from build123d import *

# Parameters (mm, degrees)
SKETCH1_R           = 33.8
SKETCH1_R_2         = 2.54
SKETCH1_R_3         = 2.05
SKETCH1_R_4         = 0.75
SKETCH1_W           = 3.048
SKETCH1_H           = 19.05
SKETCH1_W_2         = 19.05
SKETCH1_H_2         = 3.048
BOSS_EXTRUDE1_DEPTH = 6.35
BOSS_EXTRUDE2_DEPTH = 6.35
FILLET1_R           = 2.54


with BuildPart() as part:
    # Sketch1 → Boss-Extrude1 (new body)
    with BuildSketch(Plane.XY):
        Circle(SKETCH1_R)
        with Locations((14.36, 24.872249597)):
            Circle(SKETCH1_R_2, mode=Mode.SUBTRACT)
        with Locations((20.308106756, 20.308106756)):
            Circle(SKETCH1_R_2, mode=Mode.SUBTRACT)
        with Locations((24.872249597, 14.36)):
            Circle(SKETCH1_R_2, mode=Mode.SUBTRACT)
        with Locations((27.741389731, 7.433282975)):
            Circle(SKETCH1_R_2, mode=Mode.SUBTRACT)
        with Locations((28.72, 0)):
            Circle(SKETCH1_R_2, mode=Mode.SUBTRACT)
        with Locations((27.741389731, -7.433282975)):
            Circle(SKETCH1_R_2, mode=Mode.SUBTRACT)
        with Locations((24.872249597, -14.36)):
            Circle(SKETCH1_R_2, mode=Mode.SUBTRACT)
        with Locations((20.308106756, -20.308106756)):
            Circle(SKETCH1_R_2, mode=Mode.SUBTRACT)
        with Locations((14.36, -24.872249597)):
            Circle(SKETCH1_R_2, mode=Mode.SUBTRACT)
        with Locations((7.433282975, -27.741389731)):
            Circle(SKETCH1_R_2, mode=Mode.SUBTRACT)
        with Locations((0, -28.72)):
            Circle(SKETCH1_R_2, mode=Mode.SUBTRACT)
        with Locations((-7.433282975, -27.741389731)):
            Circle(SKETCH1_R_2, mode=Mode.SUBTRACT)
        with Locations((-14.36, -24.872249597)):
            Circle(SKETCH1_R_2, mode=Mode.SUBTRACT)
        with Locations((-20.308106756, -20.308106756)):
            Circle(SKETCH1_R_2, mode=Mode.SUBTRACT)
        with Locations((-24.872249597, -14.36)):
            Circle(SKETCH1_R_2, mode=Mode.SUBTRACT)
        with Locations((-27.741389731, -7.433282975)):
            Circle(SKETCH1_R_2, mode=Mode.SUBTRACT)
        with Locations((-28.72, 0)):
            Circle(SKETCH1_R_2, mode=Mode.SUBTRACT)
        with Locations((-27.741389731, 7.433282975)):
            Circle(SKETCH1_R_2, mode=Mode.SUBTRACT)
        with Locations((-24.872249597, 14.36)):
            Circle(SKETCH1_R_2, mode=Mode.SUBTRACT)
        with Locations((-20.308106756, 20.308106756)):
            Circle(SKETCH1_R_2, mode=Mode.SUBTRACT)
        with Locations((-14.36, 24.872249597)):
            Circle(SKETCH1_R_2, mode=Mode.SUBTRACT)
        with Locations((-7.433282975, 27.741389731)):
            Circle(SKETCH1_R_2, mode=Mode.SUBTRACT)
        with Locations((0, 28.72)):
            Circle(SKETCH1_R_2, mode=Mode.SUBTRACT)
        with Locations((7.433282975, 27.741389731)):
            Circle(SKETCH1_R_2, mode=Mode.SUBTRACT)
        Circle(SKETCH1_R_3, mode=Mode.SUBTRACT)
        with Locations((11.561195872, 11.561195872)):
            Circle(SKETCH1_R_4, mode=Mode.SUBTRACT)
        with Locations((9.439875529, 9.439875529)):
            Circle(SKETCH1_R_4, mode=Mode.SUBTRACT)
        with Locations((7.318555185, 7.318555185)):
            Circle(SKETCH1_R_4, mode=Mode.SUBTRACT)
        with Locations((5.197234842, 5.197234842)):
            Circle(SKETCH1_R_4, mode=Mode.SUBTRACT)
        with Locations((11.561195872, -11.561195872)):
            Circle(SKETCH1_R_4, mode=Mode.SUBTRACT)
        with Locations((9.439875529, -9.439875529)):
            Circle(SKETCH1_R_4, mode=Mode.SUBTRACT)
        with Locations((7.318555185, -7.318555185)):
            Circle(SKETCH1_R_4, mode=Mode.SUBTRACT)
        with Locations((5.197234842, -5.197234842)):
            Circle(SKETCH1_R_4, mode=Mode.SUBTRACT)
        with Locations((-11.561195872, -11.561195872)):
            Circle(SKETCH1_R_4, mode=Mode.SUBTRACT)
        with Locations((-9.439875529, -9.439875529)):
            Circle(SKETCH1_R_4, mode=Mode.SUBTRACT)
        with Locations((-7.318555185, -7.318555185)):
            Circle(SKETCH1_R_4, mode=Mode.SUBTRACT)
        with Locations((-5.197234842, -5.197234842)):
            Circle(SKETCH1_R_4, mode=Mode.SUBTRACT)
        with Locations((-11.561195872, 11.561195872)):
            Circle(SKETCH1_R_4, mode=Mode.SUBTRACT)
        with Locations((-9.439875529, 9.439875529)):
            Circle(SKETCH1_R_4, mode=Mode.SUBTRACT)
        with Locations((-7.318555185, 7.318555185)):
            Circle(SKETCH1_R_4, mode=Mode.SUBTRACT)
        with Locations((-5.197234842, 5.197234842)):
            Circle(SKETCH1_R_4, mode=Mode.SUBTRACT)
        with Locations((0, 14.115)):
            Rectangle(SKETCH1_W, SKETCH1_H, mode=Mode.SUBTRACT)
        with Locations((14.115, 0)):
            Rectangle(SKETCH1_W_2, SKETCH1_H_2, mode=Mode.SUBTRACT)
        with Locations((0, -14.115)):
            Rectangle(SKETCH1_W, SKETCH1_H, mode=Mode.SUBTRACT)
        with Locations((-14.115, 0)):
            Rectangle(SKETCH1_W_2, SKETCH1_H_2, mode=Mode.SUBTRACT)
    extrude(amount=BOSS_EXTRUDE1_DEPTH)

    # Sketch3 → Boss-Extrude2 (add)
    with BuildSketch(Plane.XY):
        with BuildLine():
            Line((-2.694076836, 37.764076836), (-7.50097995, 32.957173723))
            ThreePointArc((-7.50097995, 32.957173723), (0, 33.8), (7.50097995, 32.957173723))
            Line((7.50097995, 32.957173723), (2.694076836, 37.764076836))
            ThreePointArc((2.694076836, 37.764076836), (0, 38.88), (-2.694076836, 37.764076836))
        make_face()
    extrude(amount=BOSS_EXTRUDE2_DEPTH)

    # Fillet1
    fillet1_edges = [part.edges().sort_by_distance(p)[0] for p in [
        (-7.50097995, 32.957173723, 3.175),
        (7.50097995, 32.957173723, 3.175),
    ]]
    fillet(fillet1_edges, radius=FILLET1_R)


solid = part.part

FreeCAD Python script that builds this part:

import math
import FreeCAD as App
import Part
import Sketcher
Q = App.Units.Quantity


def edges_at(feature, points):
    """Names of the edges that pass closest to the given points."""
    edges = feature.Shape.Edges
    near = lambda p: min(range(len(edges)), key=lambda i: edges[i].distToShape(Part.Vertex(*p))[0])
    return sorted({f"Edge{near(p) + 1}" for p in points})

doc = App.newDocument("Part")
body = doc.addObject("PartDesign::Body", "Body")

sketch1 = body.newObject("Sketcher::SketchObject", "Sketch")
sketch1.AttachmentSupport = (doc.getObject("XY_Plane"), [""])
sketch1.MapMode = "FlatFace"
sketch1.addGeometry([
    Part.Circle(App.Vector(0, 0, 0), App.Vector(0, 0, 1), 33.8),
    Part.Circle(App.Vector(-20.3, -20.3, 0), App.Vector(0, 0, 1), 2.5),
    Part.Circle(App.Vector(-14.4, -24.9, 0), App.Vector(0, 0, 1), 2.5),
    Part.Circle(App.Vector(-7.4, -27.7, 0), App.Vector(0, 0, 1), 2.5),
    Part.Circle(App.Vector(0, -28.7, 0), App.Vector(0, 0, 1), 2.5),
    Part.Circle(App.Vector(-24.9, -14.4, 0), App.Vector(0, 0, 1), 2.5),
    Part.Circle(App.Vector(-27.7, -7.4, 0), App.Vector(0, 0, 1), 2.5),
    Part.Circle(App.Vector(-28.7, 0, 0), App.Vector(0, 0, 1), 2.5),
    Part.Circle(App.Vector(-11.6, -11.6, 0), App.Vector(0, 0, 1), 0.8),
    Part.Circle(App.Vector(-9.4, -9.4, 0), App.Vector(0, 0, 1), 0.8),
    Part.LineSegment(App.Vector(1.5, -23.6, 0), App.Vector(-1.5, -23.6, 0)),
    Part.LineSegment(App.Vector(-1.5, -23.6, 0), App.Vector(-1.5, -4.6, 0)),
    Part.LineSegment(App.Vector(-1.5, -4.6, 0), App.Vector(1.5, -4.6, 0)),
    Part.LineSegment(App.Vector(1.5, -4.6, 0), App.Vector(1.5, -23.6, 0)),
    Part.LineSegment(App.Vector(-4.6, -1.5, 0), App.Vector(-23.6, -1.5, 0)),
    Part.LineSegment(App.Vector(-23.6, -1.5, 0), App.Vector(-23.6, 1.5, 0)),
    Part.LineSegment(App.Vector(-23.6, 1.5, 0), App.Vector(-4.6, 1.5, 0)),
    Part.LineSegment(App.Vector(-4.6, 1.5, 0), App.Vector(-4.6, -1.5, 0)),
    Part.Circle(App.Vector(-7.3, -7.3, 0), App.Vector(0, 0, 1), 0.8),
    Part.Circle(App.Vector(-5.2, -5.2, 0), App.Vector(0, 0, 1), 0.8),
    Part.Circle(App.Vector(0, 0, 0), App.Vector(0, 0, 1), 2),
    Part.Circle(App.Vector(7.4, -27.7, 0), App.Vector(0, 0, 1), 2.5),
    Part.Circle(App.Vector(14.4, -24.9, 0), App.Vector(0, 0, 1), 2.5),
    Part.Circle(App.Vector(20.3, -20.3, 0), App.Vector(0, 0, 1), 2.5),
    Part.Circle(App.Vector(11.6, -11.6, 0), App.Vector(0, 0, 1), 0.8),
    Part.Circle(App.Vector(9.4, -9.4, 0), App.Vector(0, 0, 1), 0.8),
    Part.Circle(App.Vector(7.3, -7.3, 0), App.Vector(0, 0, 1), 0.8),
    Part.Circle(App.Vector(5.2, -5.2, 0), App.Vector(0, 0, 1), 0.8),
    Part.LineSegment(App.Vector(23.6, -1.5, 0), App.Vector(4.6, -1.5, 0)),
    Part.LineSegment(App.Vector(4.6, -1.5, 0), App.Vector(4.6, 1.5, 0)),
    Part.LineSegment(App.Vector(4.6, 1.5, 0), App.Vector(23.6, 1.5, 0)),
    Part.LineSegment(App.Vector(23.6, 1.5, 0), App.Vector(23.6, -1.5, 0)),
    Part.Circle(App.Vector(24.9, -14.4, 0), App.Vector(0, 0, 1), 2.5),
    Part.Circle(App.Vector(27.7, -7.4, 0), App.Vector(0, 0, 1), 2.5),
    Part.Circle(App.Vector(28.7, 0, 0), App.Vector(0, 0, 1), 2.5),
    Part.Circle(App.Vector(-27.7, 7.4, 0), App.Vector(0, 0, 1), 2.5),
    Part.Circle(App.Vector(-24.9, 14.4, 0), App.Vector(0, 0, 1), 2.5),
    Part.Circle(App.Vector(-5.2, 5.2, 0), App.Vector(0, 0, 1), 0.8),
    Part.Circle(App.Vector(-7.3, 7.3, 0), App.Vector(0, 0, 1), 0.8),
    Part.Circle(App.Vector(-9.4, 9.4, 0), App.Vector(0, 0, 1), 0.8),
    Part.Circle(App.Vector(-11.6, 11.6, 0), App.Vector(0, 0, 1), 0.8),
    Part.LineSegment(App.Vector(1.5, 4.6, 0), App.Vector(-1.5, 4.6, 0)),
    Part.LineSegment(App.Vector(-1.5, 4.6, 0), App.Vector(-1.5, 23.6, 0)),
    Part.LineSegment(App.Vector(-1.5, 23.6, 0), App.Vector(1.5, 23.6, 0)),
    Part.LineSegment(App.Vector(1.5, 23.6, 0), App.Vector(1.5, 4.6, 0)),
    Part.Circle(App.Vector(-20.3, 20.3, 0), App.Vector(0, 0, 1), 2.5),
    Part.Circle(App.Vector(-14.4, 24.9, 0), App.Vector(0, 0, 1), 2.5),
    Part.Circle(App.Vector(-7.4, 27.7, 0), App.Vector(0, 0, 1), 2.5),
    Part.Circle(App.Vector(0, 28.7, 0), App.Vector(0, 0, 1), 2.5),
    Part.Circle(App.Vector(5.2, 5.2, 0), App.Vector(0, 0, 1), 0.8),
    Part.Circle(App.Vector(7.3, 7.3, 0), App.Vector(0, 0, 1), 0.8),
    Part.Circle(App.Vector(9.4, 9.4, 0), App.Vector(0, 0, 1), 0.8),
    Part.Circle(App.Vector(11.6, 11.6, 0), App.Vector(0, 0, 1), 0.8),
    Part.Circle(App.Vector(27.7, 7.4, 0), App.Vector(0, 0, 1), 2.5),
    Part.Circle(App.Vector(24.9, 14.4, 0), App.Vector(0, 0, 1), 2.5),
    Part.Circle(App.Vector(7.4, 27.7, 0), App.Vector(0, 0, 1), 2.5),
    Part.Circle(App.Vector(14.4, 24.9, 0), App.Vector(0, 0, 1), 2.5),
    Part.Circle(App.Vector(20.3, 20.3, 0), App.Vector(0, 0, 1), 2.5),
], False)
sketch1.addConstraint([
    Sketcher.Constraint("Coincident", 10, 2, 11, 1),
    Sketcher.Constraint("Coincident", 11, 2, 12, 1),
    Sketcher.Constraint("Coincident", 12, 2, 13, 1),
    Sketcher.Constraint("Coincident", 13, 2, 10, 1),
    Sketcher.Constraint("Coincident", 14, 2, 15, 1),
    Sketcher.Constraint("Coincident", 15, 2, 16, 1),
    Sketcher.Constraint("Coincident", 16, 2, 17, 1),
    Sketcher.Constraint("Coincident", 17, 2, 14, 1),
    Sketcher.Constraint("Coincident", 28, 2, 29, 1),
    Sketcher.Constraint("Coincident", 29, 2, 30, 1),
    Sketcher.Constraint("Coincident", 30, 2, 31, 1),
    Sketcher.Constraint("Coincident", 31, 2, 28, 1),
    Sketcher.Constraint("Coincident", 41, 2, 42, 1),
    Sketcher.Constraint("Coincident", 42, 2, 43, 1),
    Sketcher.Constraint("Coincident", 43, 2, 44, 1),
    Sketcher.Constraint("Coincident", 44, 2, 41, 1),
    Sketcher.Constraint("Horizontal", 10),
    Sketcher.Constraint("Vertical", 11),
    Sketcher.Constraint("Horizontal", 12),
    Sketcher.Constraint("Vertical", 13),
    Sketcher.Constraint("Horizontal", 14),
    Sketcher.Constraint("Vertical", 15),
    Sketcher.Constraint("Horizontal", 16),
    Sketcher.Constraint("Vertical", 17),
    Sketcher.Constraint("Horizontal", 28),
    Sketcher.Constraint("Vertical", 29),
    Sketcher.Constraint("Horizontal", 30),
    Sketcher.Constraint("Vertical", 31),
    Sketcher.Constraint("Horizontal", 41),
    Sketcher.Constraint("Vertical", 42),
    Sketcher.Constraint("Horizontal", 43),
    Sketcher.Constraint("Vertical", 44),
    Sketcher.Constraint("Coincident", 0, 3, -1, 1),
    Sketcher.Constraint("Coincident", 20, 3, -1, 1),
    Sketcher.Constraint("Equal", 1, 2),
    Sketcher.Constraint("Equal", 2, 3),
    Sketcher.Constraint("Equal", 3, 4),
    Sketcher.Constraint("Equal", 4, 5),
    Sketcher.Constraint("Equal", 5, 6),
    Sketcher.Constraint("Equal", 6, 7),
    Sketcher.Constraint("Equal", 8, 9),
    Sketcher.Constraint("Equal", 9, 18),
    Sketcher.Constraint("Equal", 18, 19),
    Sketcher.Constraint("Equal", 7, 21),
    Sketcher.Constraint("Equal", 21, 22),
    Sketcher.Constraint("Equal", 22, 23),
    Sketcher.Constraint("Equal", 19, 24),
    Sketcher.Constraint("Equal", 24, 25),
    Sketcher.Constraint("Equal", 25, 26),
    Sketcher.Constraint("Equal", 26, 27),
    Sketcher.Constraint("Equal", 23, 32),
    Sketcher.Constraint("Equal", 32, 33),
    Sketcher.Constraint("Equal", 33, 34),
    Sketcher.Constraint("Equal", 34, 35),
    Sketcher.Constraint("Equal", 35, 36),
    Sketcher.Constraint("Equal", 27, 37),
    Sketcher.Constraint("Equal", 37, 38),
    Sketcher.Constraint("Equal", 38, 39),
    Sketcher.Constraint("Equal", 39, 40),
    Sketcher.Constraint("Equal", 36, 45),
    Sketcher.Constraint("Equal", 45, 46),
    Sketcher.Constraint("Equal", 46, 47),
    Sketcher.Constraint("Equal", 47, 48),
    Sketcher.Constraint("Equal", 40, 49),
    Sketcher.Constraint("Equal", 49, 50),
    Sketcher.Constraint("Equal", 50, 51),
    Sketcher.Constraint("Equal", 51, 52),
    Sketcher.Constraint("Equal", 48, 53),
    Sketcher.Constraint("Equal", 53, 54),
    Sketcher.Constraint("Equal", 54, 55),
    Sketcher.Constraint("Equal", 55, 56),
    Sketcher.Constraint("Equal", 56, 57),
    Sketcher.Constraint("Symmetric", 7, 3, 34, 3, -1, 1),
    Sketcher.Constraint("Symmetric", 33, 3, 35, 3, -1, 1),
    Sketcher.Constraint("Symmetric", 32, 3, 36, 3, -1, 1),
    Sketcher.Constraint("Symmetric", 27, 3, 37, 3, -1, 1),
    Sketcher.Constraint("Symmetric", 26, 3, 38, 3, -1, 1),
    Sketcher.Constraint("Symmetric", 25, 3, 39, 3, -1, 1),
    Sketcher.Constraint("Symmetric", 24, 3, 40, 3, -1, 1),
    Sketcher.Constraint("Symmetric", 23, 3, 45, 3, -1, 1),
    Sketcher.Constraint("Symmetric", 22, 3, 46, 3, -1, 1),
    Sketcher.Constraint("Symmetric", 21, 3, 47, 3, -1, 1),
    Sketcher.Constraint("Symmetric", 4, 3, 48, 3, -1, 1),
    Sketcher.Constraint("Symmetric", 19, 3, 49, 3, -1, 1),
    Sketcher.Constraint("Symmetric", 18, 3, 50, 3, -1, 1),
    Sketcher.Constraint("Symmetric", 9, 3, 51, 3, -1, 1),
    Sketcher.Constraint("Symmetric", 8, 3, 52, 3, -1, 1),
    Sketcher.Constraint("Symmetric", 6, 3, 53, 3, -1, 1),
    Sketcher.Constraint("Symmetric", 5, 3, 54, 3, -1, 1),
    Sketcher.Constraint("Symmetric", 3, 3, 55, 3, -1, 1),
    Sketcher.Constraint("Symmetric", 2, 3, 56, 3, -1, 1),
    Sketcher.Constraint("Symmetric", 1, 3, 57, 3, -1, 1),
    Sketcher.Constraint("Symmetric", 16, 2, 28, 2, -1, 1),
    Sketcher.Constraint("Symmetric", 14, 2, 30, 2, -1, 1),
    Sketcher.Constraint("Symmetric", 12, 2, 41, 2, -1, 1),
    Sketcher.Constraint("Symmetric", 10, 2, 43, 2, -1, 1),
    Sketcher.Constraint("Symmetric", 3, 3, 21, 3, -2),
    Sketcher.Constraint("Symmetric", 2, 3, 22, 3, -2),
    Sketcher.Constraint("Symmetric", 1, 3, 23, 3, -2),
    Sketcher.Constraint("Symmetric", 8, 3, 24, 3, -2),
    Sketcher.Constraint("Symmetric", 9, 3, 25, 3, -2),
    Sketcher.Constraint("Symmetric", 18, 3, 26, 3, -2),
    Sketcher.Constraint("Symmetric", 19, 3, 27, 3, -2),
    Sketcher.Constraint("Symmetric", 5, 3, 32, 3, -2),
    Sketcher.Constraint("Symmetric", 6, 3, 33, 3, -2),
    Sketcher.Constraint("PointOnObject", 4, 3, -2),
    Sketcher.Constraint("PointOnObject", 7, 3, -1),
    Sketcher.Constraint("Horizontal", 17, 2, 28, 2),
    Sketcher.Constraint("Vertical", 11, 2, 41, 2),
    Sketcher.Constraint("Equal", 30, 11),
    Sketcher.Constraint("Equal", 43, 15),
    Sketcher.Constraint("Diameter", 1, Q("0.2 in")),
    Sketcher.Constraint("DistanceX", 10, 2, 10, 1, Q("0.12 in")),
    Sketcher.Constraint("DistanceX", 14, 2, 14, 1, Q("0.75 in")),
    Sketcher.Constraint("DistanceY", 4, 3, 10, 2, Q("0.2 in")),
    Sketcher.Constraint("DistanceX", 7, 3, 14, 2, Q("0.2 in")),
    Sketcher.Constraint("Diameter", 0, 67.6),
    Sketcher.Constraint("Diameter", 8, 1.5),
    Sketcher.Constraint("Diameter", 20, 4.1),
    Sketcher.Constraint("DistanceX", 2, 3, -1, 1, 14.36),
    Sketcher.Constraint("DistanceY", 4, 3, -1, 1, 28.72),
    Sketcher.Constraint("DistanceY", 5, 3, -1, 1, 14.36),
    Sketcher.Constraint("DistanceX", 7, 3, -1, 1, 28.72),
    Sketcher.Constraint("DistanceY", 2, 3, -1, 1, 24.87225),
    Sketcher.Constraint("DistanceY", 3, 3, -1, 1, 27.74139),
    Sketcher.Constraint("DistanceX", 5, 3, -1, 1, 24.87225),
    Sketcher.Constraint("DistanceX", 6, 3, -1, 1, 27.74139),
    Sketcher.Constraint("DistanceX", 1, 3, 8, 3, 8.746911),
    Sketcher.Constraint("DistanceY", 1, 3, 8, 3, 8.746911),
    Sketcher.Constraint("DistanceX", 8, 3, 9, 3, 2.12132),
    Sketcher.Constraint("DistanceY", 8, 3, 9, 3, 2.12132),
    Sketcher.Constraint("DistanceX", 9, 3, 18, 3, 2.12132),
    Sketcher.Constraint("DistanceY", 9, 3, 18, 3, 2.12132),
    Sketcher.Constraint("DistanceX", 18, 3, 19, 3, 2.12132),
    Sketcher.Constraint("DistanceY", 18, 3, 19, 3, 2.12132),
    Sketcher.Constraint("DistanceX", 9, 3, 21, 3, 16.873159),
    Sketcher.Constraint("DistanceX", 19, 3, 25, 3, 14.63711),
    Sketcher.Constraint("DistanceY", 9, 3, 35, 3, 16.873159),
    Sketcher.Constraint("DistanceY", 19, 3, 37, 3, 10.39447),
])
pad1 = body.newObject("PartDesign::Pad", "Pad")
pad1.Profile = sketch1
pad1.Length = Q("0.25 in")

sketch2 = body.newObject("Sketcher::SketchObject", "Sketch001")
sketch2.AttachmentSupport = (doc.getObject("XY_Plane"), [""])
sketch2.MapMode = "FlatFace"
sketch2.addGeometry([
    Part.LineSegment(App.Vector(-2.7, 37.8, 0), App.Vector(-7.5, 33, 0)),
    Part.ArcOfCircle(Part.Circle(App.Vector(0, 0, 0), App.Vector(0, 0, 1), 33.8), math.radians(77), math.radians(103)),
    Part.LineSegment(App.Vector(7.5, 33, 0), App.Vector(2.7, 37.8, 0)),
    Part.ArcOfCircle(Part.Circle(App.Vector(0, 35.1, 0), App.Vector(0, 0, 1), 3.8), math.radians(45), math.radians(135)),
], False)
sketch2.addConstraint([
    Sketcher.Constraint("Coincident", 0, 2, 1, 2),
    Sketcher.Constraint("Coincident", 1, 1, 2, 1),
    Sketcher.Constraint("Tangent", 2, 2, 3, 1),
    Sketcher.Constraint("Tangent", 3, 2, 0, 1),
    Sketcher.Constraint("Coincident", 1, 3, -1, 1),
    Sketcher.Constraint("Symmetric", 2, 2, 3, 2, -2),
    Sketcher.Constraint("Perpendicular", 0, 2),
    Sketcher.Constraint("Radius", 3, Q("0.15 in")),
    Sketcher.Constraint("Radius", 1, 33.8),
    Sketcher.Constraint("DistanceY", -1, 1, 3, 3, 35.07),
])
pad2 = body.newObject("PartDesign::Pad", "Pad001")
pad2.Profile = sketch2
pad2.Length = Q("0.25 in")
doc.recompute()

fillet = body.newObject("PartDesign::Fillet", "Fillet")
fillet.Base = (pad2, edges_at(pad2, [(-7.501, 32.957, 3.175), (7.501, 32.957, 3.175)]))
fillet.Radius = Q("0.1 in")

doc.recompute()
